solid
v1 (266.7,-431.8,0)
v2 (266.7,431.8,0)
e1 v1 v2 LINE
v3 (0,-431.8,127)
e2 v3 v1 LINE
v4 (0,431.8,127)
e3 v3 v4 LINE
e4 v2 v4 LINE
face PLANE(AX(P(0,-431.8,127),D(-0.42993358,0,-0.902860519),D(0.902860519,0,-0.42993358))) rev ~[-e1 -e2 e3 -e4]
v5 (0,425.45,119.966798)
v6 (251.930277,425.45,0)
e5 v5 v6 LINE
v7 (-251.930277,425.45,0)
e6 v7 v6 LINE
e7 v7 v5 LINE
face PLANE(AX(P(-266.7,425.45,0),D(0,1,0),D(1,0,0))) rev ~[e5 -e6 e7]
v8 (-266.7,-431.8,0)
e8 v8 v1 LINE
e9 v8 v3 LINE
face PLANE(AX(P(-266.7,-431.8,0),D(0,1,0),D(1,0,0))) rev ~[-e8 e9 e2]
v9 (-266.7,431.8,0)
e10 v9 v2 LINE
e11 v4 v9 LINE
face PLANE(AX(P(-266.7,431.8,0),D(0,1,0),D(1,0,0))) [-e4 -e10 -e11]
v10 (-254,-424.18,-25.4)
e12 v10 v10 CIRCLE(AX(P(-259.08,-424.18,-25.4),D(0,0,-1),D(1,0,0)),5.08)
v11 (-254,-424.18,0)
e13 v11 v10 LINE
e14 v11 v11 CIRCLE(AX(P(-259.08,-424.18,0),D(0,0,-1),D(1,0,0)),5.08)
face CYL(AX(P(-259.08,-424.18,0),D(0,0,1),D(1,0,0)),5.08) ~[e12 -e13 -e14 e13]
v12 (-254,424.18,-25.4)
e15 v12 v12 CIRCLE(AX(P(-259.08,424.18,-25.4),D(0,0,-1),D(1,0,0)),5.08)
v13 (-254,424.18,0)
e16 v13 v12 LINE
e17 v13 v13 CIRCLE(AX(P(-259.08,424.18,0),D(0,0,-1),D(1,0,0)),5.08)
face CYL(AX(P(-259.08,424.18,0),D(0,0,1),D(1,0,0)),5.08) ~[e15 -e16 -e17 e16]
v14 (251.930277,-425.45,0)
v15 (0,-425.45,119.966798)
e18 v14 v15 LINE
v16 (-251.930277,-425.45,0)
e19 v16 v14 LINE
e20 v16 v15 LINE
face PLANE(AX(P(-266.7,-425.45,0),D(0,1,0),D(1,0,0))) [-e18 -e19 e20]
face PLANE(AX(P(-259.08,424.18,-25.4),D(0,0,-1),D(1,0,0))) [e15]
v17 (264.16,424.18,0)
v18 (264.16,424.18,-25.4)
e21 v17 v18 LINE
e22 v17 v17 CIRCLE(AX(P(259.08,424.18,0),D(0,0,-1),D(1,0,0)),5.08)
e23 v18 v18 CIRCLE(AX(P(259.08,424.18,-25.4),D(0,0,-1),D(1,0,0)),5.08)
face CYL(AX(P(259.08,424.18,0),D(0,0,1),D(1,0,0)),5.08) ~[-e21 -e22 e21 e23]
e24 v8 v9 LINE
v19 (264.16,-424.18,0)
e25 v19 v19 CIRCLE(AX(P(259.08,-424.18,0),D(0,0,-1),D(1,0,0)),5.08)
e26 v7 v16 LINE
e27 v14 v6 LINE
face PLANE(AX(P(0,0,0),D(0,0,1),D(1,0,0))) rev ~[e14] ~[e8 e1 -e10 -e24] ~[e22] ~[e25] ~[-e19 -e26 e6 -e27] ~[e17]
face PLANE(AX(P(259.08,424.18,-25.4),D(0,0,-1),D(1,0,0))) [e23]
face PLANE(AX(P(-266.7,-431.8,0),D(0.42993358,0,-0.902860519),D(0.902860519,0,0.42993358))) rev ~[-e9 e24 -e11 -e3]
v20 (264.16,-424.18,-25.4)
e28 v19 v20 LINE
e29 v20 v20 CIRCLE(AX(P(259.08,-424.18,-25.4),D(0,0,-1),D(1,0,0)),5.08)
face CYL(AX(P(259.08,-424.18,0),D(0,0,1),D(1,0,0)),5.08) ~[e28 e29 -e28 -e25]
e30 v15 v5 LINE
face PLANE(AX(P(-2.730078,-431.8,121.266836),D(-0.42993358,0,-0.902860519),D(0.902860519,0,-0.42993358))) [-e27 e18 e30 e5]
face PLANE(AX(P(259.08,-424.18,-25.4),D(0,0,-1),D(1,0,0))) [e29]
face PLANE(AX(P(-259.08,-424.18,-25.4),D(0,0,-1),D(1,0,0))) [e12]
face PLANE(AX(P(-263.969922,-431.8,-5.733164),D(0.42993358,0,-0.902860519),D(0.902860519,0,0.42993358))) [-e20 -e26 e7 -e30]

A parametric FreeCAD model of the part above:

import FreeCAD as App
import Part
import Sketcher
Q = App.Units.Quantity


def faces_at(feature, points):
    """Names of the faces that lie closest to the given points."""
    faces = feature.Shape.Faces
    near = lambda p: min(range(len(faces)), key=lambda i: faces[i].distToShape(Part.Vertex(*p))[0])
    return sorted({f"Face{near(p) + 1}" for p in points})


def add_polygon(sketch, points):
    """Adds a closed chain of lines whose ends are joined by coincident constraints."""
    first, n = sketch.GeometryCount, len(points)
    for a, b in zip(points, points[1:] + points[:1]):
        sketch.addGeometry(Part.LineSegment(App.Vector(*a, 0), App.Vector(*b, 0)), False)
    for i in range(n):
        sketch.addConstraint(Sketcher.Constraint("Coincident", first + i, 2, first + (i + 1) % n, 1))

doc = App.newDocument("Part")
params = doc.addObject("Spreadsheet::Sheet", "Params")
for row, (alias, value) in enumerate([
    ("sketch1_width", "21 in"),
    ("sketch1_height", "34 in"),
    ("pad1_length", "5 in"),
    ("sketch2_height", "5 in"),
    ("sketch2_width", "10.5 in"),
    ("pocket1_length", "100 in"),
    ("thickness_wall", "0.25 in"),
    ("sketch3_diameter", "0.4 in"),
    ("pad2_length", "1 in"),
], start=1):
    params.set(f"A{row}", alias)
    params.set(f"B{row}", "=" + value)
    params.setAlias(f"B{row}", alias)

body = doc.addObject("PartDesign::Body", "Body")

sketch1 = body.newObject("Sketcher::SketchObject", "Sketch")
sketch1.AttachmentSupport = (doc.getObject("XY_Plane"), [""])
sketch1.MapMode = "FlatFace"
add_polygon(sketch1, [(-267, 432), (-267, -432), (267, -432), (267, 432)])
sketch1.addConstraint([
    Sketcher.Constraint("Vertical", 0),
    Sketcher.Constraint("Horizontal", 1),
    Sketcher.Constraint("Vertical", 2),
    Sketcher.Constraint("Horizontal", 3),
    Sketcher.Constraint("Symmetric", 0, 2, 2, 2, -1, 1),
    Sketcher.Constraint("DistanceX", 1, 1, 1, 2, Q("21 in")),
    Sketcher.Constraint("DistanceY", 0, 2, 0, 1, Q("34 in")),
])
sketch1.setExpression("Constraints[9]", "Params.sketch1_width")
sketch1.setExpression("Constraints[10]", "Params.sketch1_height")
pad1 = body.newObject("PartDesign::Pad", "Pad")
pad1.Profile = sketch1
pad1.setExpression("Length", "Params.pad1_length")

sketch2 = body.newObject("Sketcher::SketchObject", "Sketch001")
sketch2.AttachmentSupport = (doc.getObject("XZ_Plane"), [""])
sketch2.MapMode = "FlatFace"
sketch2.AttachmentOffset = App.Placement(App.Vector(0, 0, 17 * 25.4), App.Rotation())
add_polygon(sketch2, [(-267, 0), (0, 127), (-267, 127)])
add_polygon(sketch2, [(267, 127), (0, 127), (267, 0)])
sketch2.addConstraint([
    Sketcher.Constraint("Horizontal", 1),
    Sketcher.Constraint("Vertical", 2),
    Sketcher.Constraint("Horizontal", 3),
    Sketcher.Constraint("Vertical", 5),
    Sketcher.Constraint("Coincident", 3, 2, 0, 2),
    Sketcher.Constraint("Symmetric", 2, 2, 4, 2, -1, 1),
    Sketcher.Constraint("PointOnObject", 0, 2, -2),
    Sketcher.Constraint("PointOnObject", 2, 2, -1),
    Sketcher.Constraint("DistanceY", 2, 2, 2, 1, Q("5 in")),
    Sketcher.Constraint("DistanceX", 1, 2, 1, 1, Q("10.5 in")),
])
sketch2.setExpression("Constraints[14]", "Params.sketch2_height")
sketch2.setExpression("Constraints[15]", "Params.sketch2_width")
pocket1 = body.newObject("PartDesign::Pocket", "Pocket")
pocket1.Profile = sketch2
pocket1.setExpression("Length", "Params.pocket1_length")
doc.recompute()

thickness = body.newObject("PartDesign::Thickness", "Thickness")
thickness.Base = (pocket1, faces_at(pocket1, [(0, 0, 0)]))
thickness.setExpression("Value", "Params.thickness_wall")
thickness.Reversed = True
thickness.Join = "Arc"

sketch3 = body.newObject("Sketcher::SketchObject", "Sketch002")
sketch3.AttachmentSupport = (doc.getObject("XY_Plane"), [""])
sketch3.MapMode = "FlatFace"
sketch3.addGeometry([
    Part.Circle(App.Vector(-259, -424, 0), App.Vector(0, 0, 1), 5),
    Part.Circle(App.Vector(259, -424, 0), App.Vector(0, 0, 1), 5),
    Part.Circle(App.Vector(259, 424, 0), App.Vector(0, 0, 1), 5),
    Part.Circle(App.Vector(-259, 424, 0), App.Vector(0, 0, 1), 5),
], False)
sketch3.addConstraint([
    Sketcher.Constraint("Equal", 0, 1),
    Sketcher.Constraint("Equal", 1, 2),
    Sketcher.Constraint("Equal", 2, 3),
    Sketcher.Constraint("Symmetric", 0, 3, 2, 3, -1, 1),
    Sketcher.Constraint("Symmetric", 1, 3, 3, 3, -1, 1),
    Sketcher.Constraint("Symmetric", 0, 3, 1, 3, -2),
    Sketcher.Constraint("Diameter", 0, Q("0.4 in")),
    Sketcher.Constraint("DistanceX", 0, 3, -1, 1, Q("10.2 in")),
    Sketcher.Constraint("DistanceY", 0, 3, -1, 1, Q("16.7 in")),
])
sketch3.setExpression("Constraints[6]", "Params.sketch3_diameter")
pad2 = body.newObject("PartDesign::Pad", "Pad001")
pad2.Profile = sketch3
pad2.setExpression("Length", "Params.pad2_length")
pad2.Reversed = True

doc.recompute()
